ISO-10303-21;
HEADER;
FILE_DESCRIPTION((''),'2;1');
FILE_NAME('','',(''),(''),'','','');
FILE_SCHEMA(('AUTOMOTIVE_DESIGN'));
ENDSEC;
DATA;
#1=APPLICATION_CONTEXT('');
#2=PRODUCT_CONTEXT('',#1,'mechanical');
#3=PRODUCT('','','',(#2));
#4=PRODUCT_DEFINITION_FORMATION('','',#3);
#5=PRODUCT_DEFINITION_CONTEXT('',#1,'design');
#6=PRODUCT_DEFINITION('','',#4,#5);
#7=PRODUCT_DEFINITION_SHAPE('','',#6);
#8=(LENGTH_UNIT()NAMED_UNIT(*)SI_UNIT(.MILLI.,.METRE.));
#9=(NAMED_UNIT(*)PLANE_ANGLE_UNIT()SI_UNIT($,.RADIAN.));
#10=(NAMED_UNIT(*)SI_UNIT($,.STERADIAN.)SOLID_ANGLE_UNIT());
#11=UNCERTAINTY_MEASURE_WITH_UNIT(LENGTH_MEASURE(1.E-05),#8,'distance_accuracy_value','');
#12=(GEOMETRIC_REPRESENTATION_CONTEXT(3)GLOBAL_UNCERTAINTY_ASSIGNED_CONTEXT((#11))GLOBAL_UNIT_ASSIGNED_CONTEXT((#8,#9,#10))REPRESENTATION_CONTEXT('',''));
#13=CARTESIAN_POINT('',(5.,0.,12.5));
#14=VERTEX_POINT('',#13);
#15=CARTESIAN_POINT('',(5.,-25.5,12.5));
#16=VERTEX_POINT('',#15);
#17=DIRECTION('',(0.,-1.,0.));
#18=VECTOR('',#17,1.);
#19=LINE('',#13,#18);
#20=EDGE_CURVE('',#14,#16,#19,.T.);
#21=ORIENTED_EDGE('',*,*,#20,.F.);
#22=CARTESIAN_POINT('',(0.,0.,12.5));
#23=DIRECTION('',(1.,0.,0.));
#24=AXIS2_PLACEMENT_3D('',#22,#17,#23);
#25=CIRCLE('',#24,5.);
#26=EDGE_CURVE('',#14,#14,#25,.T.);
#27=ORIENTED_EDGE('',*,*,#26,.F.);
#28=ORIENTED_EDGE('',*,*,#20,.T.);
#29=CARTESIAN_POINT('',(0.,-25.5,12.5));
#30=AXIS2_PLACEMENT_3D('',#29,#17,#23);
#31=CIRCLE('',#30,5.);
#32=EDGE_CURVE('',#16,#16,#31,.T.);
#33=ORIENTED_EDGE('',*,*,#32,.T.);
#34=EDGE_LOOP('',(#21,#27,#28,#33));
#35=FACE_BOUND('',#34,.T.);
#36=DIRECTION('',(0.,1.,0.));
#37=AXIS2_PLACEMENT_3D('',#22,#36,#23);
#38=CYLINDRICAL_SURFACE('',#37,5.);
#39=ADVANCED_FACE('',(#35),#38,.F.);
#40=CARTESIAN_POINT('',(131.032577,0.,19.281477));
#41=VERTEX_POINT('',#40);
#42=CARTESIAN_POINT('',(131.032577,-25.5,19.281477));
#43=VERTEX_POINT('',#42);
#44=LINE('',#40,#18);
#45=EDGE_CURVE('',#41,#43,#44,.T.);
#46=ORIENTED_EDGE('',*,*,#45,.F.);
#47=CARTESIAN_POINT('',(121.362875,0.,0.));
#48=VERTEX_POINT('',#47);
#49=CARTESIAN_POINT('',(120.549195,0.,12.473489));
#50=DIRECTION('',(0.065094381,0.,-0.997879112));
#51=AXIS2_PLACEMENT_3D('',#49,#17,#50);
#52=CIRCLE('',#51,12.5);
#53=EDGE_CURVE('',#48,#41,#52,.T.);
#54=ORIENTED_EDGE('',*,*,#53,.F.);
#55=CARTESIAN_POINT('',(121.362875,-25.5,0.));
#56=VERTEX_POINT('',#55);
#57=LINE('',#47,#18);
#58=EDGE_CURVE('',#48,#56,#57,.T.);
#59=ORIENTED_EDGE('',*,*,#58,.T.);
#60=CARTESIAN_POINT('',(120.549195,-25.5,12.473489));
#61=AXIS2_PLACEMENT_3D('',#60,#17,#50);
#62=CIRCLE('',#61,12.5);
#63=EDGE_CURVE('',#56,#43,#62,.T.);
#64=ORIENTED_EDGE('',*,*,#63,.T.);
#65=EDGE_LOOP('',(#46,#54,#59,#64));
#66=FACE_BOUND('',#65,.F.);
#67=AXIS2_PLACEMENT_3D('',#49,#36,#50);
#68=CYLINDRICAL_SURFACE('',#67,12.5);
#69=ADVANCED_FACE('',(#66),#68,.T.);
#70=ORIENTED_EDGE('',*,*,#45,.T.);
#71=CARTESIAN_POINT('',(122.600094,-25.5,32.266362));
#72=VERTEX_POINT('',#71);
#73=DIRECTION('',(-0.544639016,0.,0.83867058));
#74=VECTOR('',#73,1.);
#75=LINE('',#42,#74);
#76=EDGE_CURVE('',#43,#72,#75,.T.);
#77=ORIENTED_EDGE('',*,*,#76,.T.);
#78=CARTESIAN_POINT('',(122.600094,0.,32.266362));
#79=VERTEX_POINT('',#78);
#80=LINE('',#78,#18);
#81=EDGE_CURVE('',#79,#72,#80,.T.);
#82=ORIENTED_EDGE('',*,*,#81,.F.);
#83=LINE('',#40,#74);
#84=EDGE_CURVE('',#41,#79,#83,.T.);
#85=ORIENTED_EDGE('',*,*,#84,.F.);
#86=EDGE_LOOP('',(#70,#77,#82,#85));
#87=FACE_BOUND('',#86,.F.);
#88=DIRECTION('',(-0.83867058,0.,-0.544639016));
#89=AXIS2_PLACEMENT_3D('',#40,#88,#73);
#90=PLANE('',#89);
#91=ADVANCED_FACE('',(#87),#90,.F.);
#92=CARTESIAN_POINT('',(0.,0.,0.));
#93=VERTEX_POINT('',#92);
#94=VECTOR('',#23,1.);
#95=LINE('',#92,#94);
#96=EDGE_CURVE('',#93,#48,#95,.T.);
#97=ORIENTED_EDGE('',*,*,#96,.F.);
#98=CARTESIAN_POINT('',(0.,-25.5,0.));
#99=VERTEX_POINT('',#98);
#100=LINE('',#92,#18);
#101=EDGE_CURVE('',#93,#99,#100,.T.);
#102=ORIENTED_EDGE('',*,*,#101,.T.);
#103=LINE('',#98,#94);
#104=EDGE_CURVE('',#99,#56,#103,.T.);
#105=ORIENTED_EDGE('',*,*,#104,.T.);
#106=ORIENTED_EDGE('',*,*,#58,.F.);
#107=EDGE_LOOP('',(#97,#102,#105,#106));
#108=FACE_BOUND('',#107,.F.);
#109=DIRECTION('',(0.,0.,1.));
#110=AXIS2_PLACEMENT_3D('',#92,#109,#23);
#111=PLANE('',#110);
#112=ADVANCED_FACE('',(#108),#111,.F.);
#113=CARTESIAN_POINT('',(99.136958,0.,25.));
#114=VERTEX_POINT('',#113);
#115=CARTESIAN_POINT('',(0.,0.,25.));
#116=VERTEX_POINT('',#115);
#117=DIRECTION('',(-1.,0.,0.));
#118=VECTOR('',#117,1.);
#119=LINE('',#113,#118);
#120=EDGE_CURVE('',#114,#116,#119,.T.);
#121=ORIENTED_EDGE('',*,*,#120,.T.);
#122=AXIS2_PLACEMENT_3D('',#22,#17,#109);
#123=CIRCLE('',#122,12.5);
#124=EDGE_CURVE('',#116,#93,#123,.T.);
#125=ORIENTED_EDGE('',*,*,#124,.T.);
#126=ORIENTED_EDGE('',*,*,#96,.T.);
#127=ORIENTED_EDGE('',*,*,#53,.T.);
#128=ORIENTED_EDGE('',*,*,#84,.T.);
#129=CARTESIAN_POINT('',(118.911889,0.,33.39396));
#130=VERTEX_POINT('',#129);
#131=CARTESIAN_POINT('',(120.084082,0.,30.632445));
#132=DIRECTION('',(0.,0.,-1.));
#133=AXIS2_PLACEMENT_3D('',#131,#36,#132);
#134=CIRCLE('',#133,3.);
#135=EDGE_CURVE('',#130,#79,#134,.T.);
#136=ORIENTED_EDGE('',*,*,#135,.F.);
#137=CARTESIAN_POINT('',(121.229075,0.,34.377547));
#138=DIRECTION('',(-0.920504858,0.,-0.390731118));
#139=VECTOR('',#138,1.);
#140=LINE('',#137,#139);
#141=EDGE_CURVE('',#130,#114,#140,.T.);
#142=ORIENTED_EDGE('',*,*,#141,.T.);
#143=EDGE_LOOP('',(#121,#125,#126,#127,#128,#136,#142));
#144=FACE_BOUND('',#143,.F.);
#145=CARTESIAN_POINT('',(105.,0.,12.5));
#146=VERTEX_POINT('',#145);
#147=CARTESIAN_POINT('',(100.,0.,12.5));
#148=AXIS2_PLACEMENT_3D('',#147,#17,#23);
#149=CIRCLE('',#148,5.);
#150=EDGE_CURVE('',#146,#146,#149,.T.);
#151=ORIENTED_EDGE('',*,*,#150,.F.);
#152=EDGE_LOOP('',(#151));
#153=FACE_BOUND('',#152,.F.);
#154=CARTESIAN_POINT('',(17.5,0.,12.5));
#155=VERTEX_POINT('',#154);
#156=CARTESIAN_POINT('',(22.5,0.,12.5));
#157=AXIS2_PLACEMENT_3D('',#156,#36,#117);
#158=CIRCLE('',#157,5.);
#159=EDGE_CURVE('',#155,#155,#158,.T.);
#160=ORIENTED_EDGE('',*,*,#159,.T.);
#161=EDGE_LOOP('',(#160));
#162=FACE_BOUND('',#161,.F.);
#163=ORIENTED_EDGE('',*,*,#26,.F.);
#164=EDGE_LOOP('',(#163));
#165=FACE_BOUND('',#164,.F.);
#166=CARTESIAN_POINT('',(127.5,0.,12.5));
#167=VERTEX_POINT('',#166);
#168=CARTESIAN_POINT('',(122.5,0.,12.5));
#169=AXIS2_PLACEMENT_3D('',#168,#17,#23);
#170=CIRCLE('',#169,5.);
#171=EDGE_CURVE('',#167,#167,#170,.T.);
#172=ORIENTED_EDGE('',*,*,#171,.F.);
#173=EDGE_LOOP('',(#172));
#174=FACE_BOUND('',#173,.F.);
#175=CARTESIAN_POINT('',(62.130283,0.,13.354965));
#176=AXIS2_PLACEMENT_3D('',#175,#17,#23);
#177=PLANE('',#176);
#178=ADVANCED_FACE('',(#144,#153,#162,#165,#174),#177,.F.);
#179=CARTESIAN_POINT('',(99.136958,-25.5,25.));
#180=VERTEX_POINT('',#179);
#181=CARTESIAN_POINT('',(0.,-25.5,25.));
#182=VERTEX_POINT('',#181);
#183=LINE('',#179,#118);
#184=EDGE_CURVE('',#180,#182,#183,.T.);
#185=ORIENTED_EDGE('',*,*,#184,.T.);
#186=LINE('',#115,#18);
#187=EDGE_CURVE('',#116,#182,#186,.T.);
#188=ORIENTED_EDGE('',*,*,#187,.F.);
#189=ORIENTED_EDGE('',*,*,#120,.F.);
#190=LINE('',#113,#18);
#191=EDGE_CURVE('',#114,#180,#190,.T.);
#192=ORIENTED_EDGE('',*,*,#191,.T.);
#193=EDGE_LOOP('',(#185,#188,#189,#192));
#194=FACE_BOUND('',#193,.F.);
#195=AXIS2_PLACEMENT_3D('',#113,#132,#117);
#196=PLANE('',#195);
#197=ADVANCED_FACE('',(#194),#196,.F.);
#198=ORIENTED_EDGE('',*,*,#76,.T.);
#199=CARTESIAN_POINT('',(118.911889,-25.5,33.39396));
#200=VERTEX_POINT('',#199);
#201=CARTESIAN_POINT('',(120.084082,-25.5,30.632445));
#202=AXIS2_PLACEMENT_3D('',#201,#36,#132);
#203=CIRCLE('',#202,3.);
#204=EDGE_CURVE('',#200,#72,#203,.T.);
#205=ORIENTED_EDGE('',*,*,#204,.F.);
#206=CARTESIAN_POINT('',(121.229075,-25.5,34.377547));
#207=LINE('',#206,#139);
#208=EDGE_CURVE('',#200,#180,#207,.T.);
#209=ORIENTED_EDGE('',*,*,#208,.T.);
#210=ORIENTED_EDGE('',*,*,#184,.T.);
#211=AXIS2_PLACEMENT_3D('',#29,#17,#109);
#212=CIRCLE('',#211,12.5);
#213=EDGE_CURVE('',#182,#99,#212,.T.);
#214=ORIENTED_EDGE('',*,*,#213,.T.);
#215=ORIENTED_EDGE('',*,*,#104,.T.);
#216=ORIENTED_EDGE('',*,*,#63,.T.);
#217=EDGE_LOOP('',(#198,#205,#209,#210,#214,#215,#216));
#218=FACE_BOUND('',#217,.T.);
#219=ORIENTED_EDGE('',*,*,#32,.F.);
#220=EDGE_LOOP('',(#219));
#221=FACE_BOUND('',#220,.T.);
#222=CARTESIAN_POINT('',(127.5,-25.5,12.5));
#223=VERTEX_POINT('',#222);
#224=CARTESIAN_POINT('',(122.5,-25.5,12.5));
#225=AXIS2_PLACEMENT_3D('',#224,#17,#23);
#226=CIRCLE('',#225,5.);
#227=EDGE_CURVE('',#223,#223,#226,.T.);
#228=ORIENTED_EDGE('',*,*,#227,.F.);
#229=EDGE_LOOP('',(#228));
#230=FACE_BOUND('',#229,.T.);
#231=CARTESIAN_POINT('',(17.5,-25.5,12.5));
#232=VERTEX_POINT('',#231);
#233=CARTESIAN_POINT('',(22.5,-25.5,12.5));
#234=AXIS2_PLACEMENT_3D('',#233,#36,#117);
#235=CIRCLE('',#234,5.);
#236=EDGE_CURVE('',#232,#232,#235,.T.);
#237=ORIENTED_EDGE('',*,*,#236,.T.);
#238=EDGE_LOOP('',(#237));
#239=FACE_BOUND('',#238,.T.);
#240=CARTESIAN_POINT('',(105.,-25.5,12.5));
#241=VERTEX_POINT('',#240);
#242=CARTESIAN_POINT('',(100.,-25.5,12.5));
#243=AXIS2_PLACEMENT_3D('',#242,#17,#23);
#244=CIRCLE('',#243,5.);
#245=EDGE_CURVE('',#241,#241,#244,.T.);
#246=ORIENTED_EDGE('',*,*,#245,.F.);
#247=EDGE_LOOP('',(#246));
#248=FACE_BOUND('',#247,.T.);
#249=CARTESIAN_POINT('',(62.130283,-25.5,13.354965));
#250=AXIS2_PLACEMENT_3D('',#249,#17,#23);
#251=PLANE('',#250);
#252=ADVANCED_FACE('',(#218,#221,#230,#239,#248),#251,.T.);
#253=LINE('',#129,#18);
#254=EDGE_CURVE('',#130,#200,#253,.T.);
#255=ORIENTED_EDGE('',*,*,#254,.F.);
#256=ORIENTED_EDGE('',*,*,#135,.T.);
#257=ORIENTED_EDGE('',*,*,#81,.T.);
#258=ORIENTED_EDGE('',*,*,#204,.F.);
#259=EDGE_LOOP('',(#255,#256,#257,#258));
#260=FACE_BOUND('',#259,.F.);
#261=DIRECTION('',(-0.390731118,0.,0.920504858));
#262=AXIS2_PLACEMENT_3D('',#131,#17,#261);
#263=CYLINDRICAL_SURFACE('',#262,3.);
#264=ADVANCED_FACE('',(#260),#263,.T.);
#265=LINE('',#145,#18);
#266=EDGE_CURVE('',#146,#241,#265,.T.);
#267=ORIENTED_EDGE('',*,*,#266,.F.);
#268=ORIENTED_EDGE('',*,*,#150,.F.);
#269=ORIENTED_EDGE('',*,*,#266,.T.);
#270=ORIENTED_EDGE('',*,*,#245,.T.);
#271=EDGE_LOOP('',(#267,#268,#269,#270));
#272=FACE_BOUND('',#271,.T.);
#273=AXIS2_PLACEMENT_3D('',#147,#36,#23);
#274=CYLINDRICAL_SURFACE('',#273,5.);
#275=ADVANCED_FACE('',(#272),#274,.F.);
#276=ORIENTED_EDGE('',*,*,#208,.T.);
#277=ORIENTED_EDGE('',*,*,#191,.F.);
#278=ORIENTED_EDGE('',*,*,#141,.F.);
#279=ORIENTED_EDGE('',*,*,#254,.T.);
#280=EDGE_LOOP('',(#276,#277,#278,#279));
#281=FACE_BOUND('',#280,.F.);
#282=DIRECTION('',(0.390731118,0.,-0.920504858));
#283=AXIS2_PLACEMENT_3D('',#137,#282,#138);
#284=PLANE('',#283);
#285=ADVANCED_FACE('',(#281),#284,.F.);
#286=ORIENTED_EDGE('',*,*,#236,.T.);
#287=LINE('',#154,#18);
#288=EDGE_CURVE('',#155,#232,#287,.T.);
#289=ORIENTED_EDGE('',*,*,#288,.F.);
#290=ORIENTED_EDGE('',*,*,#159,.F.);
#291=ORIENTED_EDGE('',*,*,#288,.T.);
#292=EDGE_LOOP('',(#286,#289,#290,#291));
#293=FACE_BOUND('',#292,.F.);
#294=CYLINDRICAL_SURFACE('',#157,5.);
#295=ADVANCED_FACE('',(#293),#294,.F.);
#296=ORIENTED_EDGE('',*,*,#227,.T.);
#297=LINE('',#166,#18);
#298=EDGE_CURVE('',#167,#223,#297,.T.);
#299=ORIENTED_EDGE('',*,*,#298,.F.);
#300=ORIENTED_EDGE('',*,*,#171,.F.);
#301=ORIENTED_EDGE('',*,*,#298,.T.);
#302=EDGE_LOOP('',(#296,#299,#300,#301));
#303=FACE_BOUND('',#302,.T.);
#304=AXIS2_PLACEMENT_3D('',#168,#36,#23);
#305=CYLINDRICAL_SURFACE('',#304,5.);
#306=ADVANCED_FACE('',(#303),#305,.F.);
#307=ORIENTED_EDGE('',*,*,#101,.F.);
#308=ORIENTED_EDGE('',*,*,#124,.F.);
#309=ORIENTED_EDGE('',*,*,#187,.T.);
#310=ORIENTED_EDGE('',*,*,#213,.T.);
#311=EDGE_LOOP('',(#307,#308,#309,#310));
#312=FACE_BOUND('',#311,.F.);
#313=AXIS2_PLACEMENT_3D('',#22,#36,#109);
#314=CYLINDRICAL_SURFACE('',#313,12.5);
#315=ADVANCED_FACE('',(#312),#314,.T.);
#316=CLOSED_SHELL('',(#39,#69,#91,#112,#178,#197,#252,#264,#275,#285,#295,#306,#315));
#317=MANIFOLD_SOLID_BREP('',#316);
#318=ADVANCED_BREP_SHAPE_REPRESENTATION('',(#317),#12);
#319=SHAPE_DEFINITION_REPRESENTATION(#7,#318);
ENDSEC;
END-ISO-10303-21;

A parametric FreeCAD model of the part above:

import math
import FreeCAD as App
import Part
import Sketcher

V = App.Vector
Q = App.Units.Quantity


def edges_at(feature, points):
    """Names of the edges that pass closest to the given points."""
    edges = feature.Shape.Edges
    near = lambda p: min(range(len(edges)), key=lambda i: edges[i].distToShape(Part.Vertex(*p))[0])
    return sorted({f"Edge{near(p) + 1}" for p in points})

doc = App.newDocument("Part")
body = doc.addObject("PartDesign::Body", "Body")

# Sketch on XZ plane
sketch1 = body.newObject("Sketcher::SketchObject", "Sketch")
sketch1.AttachmentSupport = (doc.getObject("XZ_Plane"), [""])
sketch1.MapMode = "FlatFace"
sketch1.addGeometry(Part.ArcOfCircle(Part.Circle(V(0, 12.5, 0), V(0, 0, 1), 12.5), math.radians(90), math.radians(270)), False)
sketch1.addGeometry(Part.LineSegment(V(0, 0, 0), V(121.362875, 0, 0)), False)
sketch1.addGeometry(Part.ArcOfCircle(Part.Circle(V(120.549195, 12.473489, 0), V(0, 0, 1), 12.5), math.radians(-86.267728), math.radians(33.000002)), False)
sketch1.addGeometry(Part.LineSegment(V(131.032577, 19.281477, 0), V(121.229075, 34.377547, 0)), False)
sketch1.addGeometry(Part.LineSegment(V(121.229075, 34.377547, 0), V(99.136958, 25, 0)), False)
sketch1.addGeometry(Part.LineSegment(V(99.136958, 25, 0), V(0, 25, 0)), False)
sketch1.addGeometry(Part.Circle(V(0, 12.5, 0), V(0, 0, 1), 5), False)
sketch1.addGeometry(Part.Circle(V(22.5, 12.5, 0), V(0, 0, 1), 5), False)
sketch1.addGeometry(Part.Circle(V(100, 12.5, 0), V(0, 0, 1), 5), False)
sketch1.addGeometry(Part.Circle(V(122.5, 12.5, 0), V(0, 0, 1), 5), False)
sketch1.addConstraint(Sketcher.Constraint("Tangent", 0, 2, 1, 1))
sketch1.addConstraint(Sketcher.Constraint("Coincident", 1, 2, 2, 1))
sketch1.addConstraint(Sketcher.Constraint("Tangent", 2, 2, 3, 1))
sketch1.addConstraint(Sketcher.Constraint("Coincident", 3, 2, 4, 1))
sketch1.addConstraint(Sketcher.Constraint("Coincident", 4, 2, 5, 1))
sketch1.addConstraint(Sketcher.Constraint("Tangent", 5, 2, 0, 1))
sketch1.addConstraint(Sketcher.Constraint("Horizontal", 1))
sketch1.addConstraint(Sketcher.Constraint("Horizontal", 5))
sketch1.addConstraint(Sketcher.Constraint("Coincident", 0, 2, -1, 1))
sketch1.addConstraint(Sketcher.Constraint("Coincident", 6, 3, 0, 3))
sketch1.addConstraint(Sketcher.Constraint("Equal", 0, 2))
sketch1.addConstraint(Sketcher.Constraint("Equal", 6, 7))
sketch1.addConstraint(Sketcher.Constraint("Equal", 7, 8))
sketch1.addConstraint(Sketcher.Constraint("Equal", 8, 9))
sketch1.addConstraint(Sketcher.Constraint("Horizontal", 6, 3, 7, 3))
sketch1.addConstraint(Sketcher.Constraint("Horizontal", 7, 3, 8, 3))
sketch1.addConstraint(Sketcher.Constraint("Horizontal", 8, 3, 9, 3))
sketch1.addConstraint(Sketcher.Constraint("Diameter", 6, Q("10 mm")))
sketch1.addConstraint(Sketcher.Constraint("Radius", 0, Q("12.5 mm")))
sketch1.addConstraint(Sketcher.Constraint("Angle", 3, Q("122.999999 deg")))
sketch1.addConstraint(Sketcher.Constraint("Angle", 4, Q("-157.000001 deg")))
sketch1.addConstraint(Sketcher.Constraint("Distance", 3, Q("17.999999 mm")))
sketch1.addConstraint(Sketcher.Constraint("Distance", 4, Q("24 mm")))
sketch1.addConstraint(Sketcher.Constraint("DistanceX", -1, 1, 8, 3, Q("100 mm")))
sketch1.addConstraint(Sketcher.Constraint("DistanceX", 7, 3, 9, 3, Q("100 mm")))
sketch1.addConstraint(Sketcher.Constraint("DistanceX", -1, 1, 7, 3, Q("22.5 mm")))
sketch1.addConstraint(Sketcher.Constraint("DistanceX", 5, 2, 5, 1, Q("99.136958 mm")))
pad1 = body.newObject("PartDesign::Pad", "Pad")
pad1.Profile = sketch1
pad1.Length = 25.5
doc.recompute()

fillet = body.newObject("PartDesign::Fillet", "Fillet")
fillet.Base = (pad1, edges_at(pad1, [(121.229, -12.75, 34.378)]))
fillet.Radius = 3

doc.recompute()
